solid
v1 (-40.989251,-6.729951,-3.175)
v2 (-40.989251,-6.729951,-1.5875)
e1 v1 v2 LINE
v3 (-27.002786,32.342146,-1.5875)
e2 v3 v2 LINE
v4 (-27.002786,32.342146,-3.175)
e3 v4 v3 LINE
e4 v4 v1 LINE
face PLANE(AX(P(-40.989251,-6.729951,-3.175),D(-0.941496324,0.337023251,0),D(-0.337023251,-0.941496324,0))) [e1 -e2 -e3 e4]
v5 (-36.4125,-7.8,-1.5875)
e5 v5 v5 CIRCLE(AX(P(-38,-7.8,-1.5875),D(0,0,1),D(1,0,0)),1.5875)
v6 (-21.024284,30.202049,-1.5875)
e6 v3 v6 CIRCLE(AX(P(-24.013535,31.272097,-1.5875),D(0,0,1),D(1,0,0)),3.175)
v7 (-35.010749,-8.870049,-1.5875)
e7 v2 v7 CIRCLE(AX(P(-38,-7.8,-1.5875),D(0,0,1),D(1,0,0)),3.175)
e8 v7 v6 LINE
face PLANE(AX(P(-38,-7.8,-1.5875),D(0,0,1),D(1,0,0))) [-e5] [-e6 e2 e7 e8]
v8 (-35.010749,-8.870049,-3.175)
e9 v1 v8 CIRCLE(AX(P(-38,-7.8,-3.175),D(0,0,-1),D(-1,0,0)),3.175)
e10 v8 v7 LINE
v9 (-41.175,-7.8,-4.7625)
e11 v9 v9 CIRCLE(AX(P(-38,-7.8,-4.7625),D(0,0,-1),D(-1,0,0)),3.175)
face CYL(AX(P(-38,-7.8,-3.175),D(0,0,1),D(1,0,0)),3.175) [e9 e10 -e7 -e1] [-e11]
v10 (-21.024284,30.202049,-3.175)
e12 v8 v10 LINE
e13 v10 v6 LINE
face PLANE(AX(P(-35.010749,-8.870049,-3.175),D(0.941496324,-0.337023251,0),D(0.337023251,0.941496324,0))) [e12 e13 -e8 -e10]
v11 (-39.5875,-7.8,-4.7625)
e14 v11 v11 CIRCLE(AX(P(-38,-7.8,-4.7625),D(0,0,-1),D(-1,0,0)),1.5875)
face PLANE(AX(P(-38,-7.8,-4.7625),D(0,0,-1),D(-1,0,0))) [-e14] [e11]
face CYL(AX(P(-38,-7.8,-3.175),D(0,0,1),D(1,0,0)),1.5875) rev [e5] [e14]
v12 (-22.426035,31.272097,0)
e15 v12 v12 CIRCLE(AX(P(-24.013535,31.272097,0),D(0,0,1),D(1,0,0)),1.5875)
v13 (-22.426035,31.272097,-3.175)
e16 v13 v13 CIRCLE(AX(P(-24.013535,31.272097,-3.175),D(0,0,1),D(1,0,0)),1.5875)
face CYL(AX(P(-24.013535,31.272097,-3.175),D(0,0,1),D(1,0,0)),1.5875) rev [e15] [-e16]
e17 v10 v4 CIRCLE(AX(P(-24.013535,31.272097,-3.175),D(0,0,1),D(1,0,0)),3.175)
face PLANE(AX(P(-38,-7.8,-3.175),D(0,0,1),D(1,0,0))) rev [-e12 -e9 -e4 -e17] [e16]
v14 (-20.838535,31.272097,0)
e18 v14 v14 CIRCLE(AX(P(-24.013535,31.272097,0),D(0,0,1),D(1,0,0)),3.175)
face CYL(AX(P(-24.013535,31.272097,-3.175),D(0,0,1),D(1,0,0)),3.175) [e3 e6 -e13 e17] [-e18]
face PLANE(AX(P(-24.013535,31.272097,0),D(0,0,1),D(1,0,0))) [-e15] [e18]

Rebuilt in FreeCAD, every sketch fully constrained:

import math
import FreeCAD as App
import Part
import Sketcher

V = App.Vector
Q = App.Units.Quantity

doc = App.newDocument("Part")
body = doc.addObject("PartDesign::Body", "Body")

# Sketch on XY plane
sketch1 = body.newObject("Sketcher::SketchObject", "Sketch")
sketch1.AttachmentSupport = (doc.getObject("XY_Plane"), [""])
sketch1.MapMode = "FlatFace"
sketch1.AttachmentOffset = App.Placement(V(0, 0, -0.0625 * 25.4), App.Rotation())
sketch1.addGeometry([
    Part.LineSegment(V(-27.002786, 32.342146, 0), V(-40.989251, -6.729951, 0)),  # 0
    Part.ArcOfCircle(Part.Circle(V(-38, -7.8, 0), V(0, 0, 1), 3.175), math.radians(160.304382), math.radians(340.304382)),  # 1
    Part.LineSegment(V(-35.010749, -8.870049, 0), V(-21.024284, 30.202049, 0)),  # 2
    Part.ArcOfCircle(Part.Circle(V(-24.013535, 31.272097, 0), V(0, 0, 1), 3.175), math.radians(-19.695618), math.radians(160.304382)),  # 3
    Part.Circle(V(-38, -7.8, 0), V(0, 0, 1), 1.5875),  # 4
    Part.Circle(V(-24.013535, 31.272097, 0), V(0, 0, 1), 1.5875),  # 5
], False)
sketch1.addConstraint([
    Sketcher.Constraint("Tangent", 0, 2, 1, 1),
    Sketcher.Constraint("Tangent", 1, 2, 2, 1),
    Sketcher.Constraint("Tangent", 2, 2, 3, 1),
    Sketcher.Constraint("Tangent", 3, 2, 0, 1),
    Sketcher.Constraint("Coincident", 4, 3, 1, 3),
    Sketcher.Constraint("Coincident", 5, 3, 3, 3),
    Sketcher.Constraint("Equal", 1, 3),
    Sketcher.Constraint("Equal", 4, 5),
    Sketcher.Constraint("Diameter", 4, Q("0.125 in")),
    Sketcher.Constraint("Radius", 1, Q("0.125 in")),
    Sketcher.Constraint("Distance", 0, Q("41.5 mm")),
    Sketcher.Constraint("DistanceX", 1, 3, -1, 1, Q("38 mm")),
    Sketcher.Constraint("DistanceY", 1, 3, -1, 1, Q("7.8 mm")),
    Sketcher.Constraint("DistanceX", 0, 2, 1, 2, Q("5.978502 mm")),
])
pad1 = body.newObject("PartDesign::Pad", "Pad")
pad1.Profile = sketch1
pad1.Length = Q("0.0625 in")
pad1.Reversed = True

# Sketch on XY plane
sketch2 = body.newObject("Sketcher::SketchObject", "Sketch001")
sketch2.AttachmentSupport = (doc.getObject("XY_Plane"), [""])
sketch2.MapMode = "FlatFace"
sketch2.addGeometry([
    Part.Circle(V(-24.013535, 31.272097, 0), V(0, 0, 1), 3.175),
    Part.Circle(V(-24.013535, 31.272097, 0), V(0, 0, 1), 1.5875),
], False)
sketch2.addConstraint([
    Sketcher.Constraint("Coincident", 1, 3, 0, 3),
    Sketcher.Constraint("Diameter", 0, Q("0.25 in")),
    Sketcher.Constraint("Diameter", 1, Q("0.125 in")),
    Sketcher.Constraint("DistanceX", 0, 3, -1, 1, Q("24.013535 mm")),
    Sketcher.Constraint("DistanceY", -1, 1, 0, 3, Q("31.272097 mm")),
])
pad2 = body.newObject("PartDesign::Pad", "Pad001")
pad2.Profile = sketch2
pad2.Length = Q("0.0625 in")
pad2.Reversed = True

# Sketch on XY plane
sketch3 = body.newObject("Sketcher::SketchObject", "Sketch002")
sketch3.AttachmentSupport = (doc.getObject("XY_Plane"), [""])
sketch3.MapMode = "FlatFace"
sketch3.AttachmentOffset = App.Placement(V(0, 0, -0.125 * 25.4), App.Rotation())
sketch3.addGeometry([
    Part.Circle(V(-38, -7.8, 0), V(0, 0, 1), 3.175),
    Part.Circle(V(-38, -7.8, 0), V(0, 0, 1), 1.5875),
], False)
sketch3.addConstraint([
    Sketcher.Constraint("Coincident", 1, 3, 0, 3),
    Sketcher.Constraint("Diameter", 0, Q("0.25 in")),
    Sketcher.Constraint("Diameter", 1, Q("0.125 in")),
    Sketcher.Constraint("DistanceX", 0, 3, -1, 1, Q("38 mm")),
    Sketcher.Constraint("DistanceY", 0, 3, -1, 1, Q("7.8 mm")),
])
pad3 = body.newObject("PartDesign::Pad", "Pad002")
pad3.Profile = sketch3
pad3.Length = Q("0.0625 in")
pad3.Reversed = True

doc.recompute()
